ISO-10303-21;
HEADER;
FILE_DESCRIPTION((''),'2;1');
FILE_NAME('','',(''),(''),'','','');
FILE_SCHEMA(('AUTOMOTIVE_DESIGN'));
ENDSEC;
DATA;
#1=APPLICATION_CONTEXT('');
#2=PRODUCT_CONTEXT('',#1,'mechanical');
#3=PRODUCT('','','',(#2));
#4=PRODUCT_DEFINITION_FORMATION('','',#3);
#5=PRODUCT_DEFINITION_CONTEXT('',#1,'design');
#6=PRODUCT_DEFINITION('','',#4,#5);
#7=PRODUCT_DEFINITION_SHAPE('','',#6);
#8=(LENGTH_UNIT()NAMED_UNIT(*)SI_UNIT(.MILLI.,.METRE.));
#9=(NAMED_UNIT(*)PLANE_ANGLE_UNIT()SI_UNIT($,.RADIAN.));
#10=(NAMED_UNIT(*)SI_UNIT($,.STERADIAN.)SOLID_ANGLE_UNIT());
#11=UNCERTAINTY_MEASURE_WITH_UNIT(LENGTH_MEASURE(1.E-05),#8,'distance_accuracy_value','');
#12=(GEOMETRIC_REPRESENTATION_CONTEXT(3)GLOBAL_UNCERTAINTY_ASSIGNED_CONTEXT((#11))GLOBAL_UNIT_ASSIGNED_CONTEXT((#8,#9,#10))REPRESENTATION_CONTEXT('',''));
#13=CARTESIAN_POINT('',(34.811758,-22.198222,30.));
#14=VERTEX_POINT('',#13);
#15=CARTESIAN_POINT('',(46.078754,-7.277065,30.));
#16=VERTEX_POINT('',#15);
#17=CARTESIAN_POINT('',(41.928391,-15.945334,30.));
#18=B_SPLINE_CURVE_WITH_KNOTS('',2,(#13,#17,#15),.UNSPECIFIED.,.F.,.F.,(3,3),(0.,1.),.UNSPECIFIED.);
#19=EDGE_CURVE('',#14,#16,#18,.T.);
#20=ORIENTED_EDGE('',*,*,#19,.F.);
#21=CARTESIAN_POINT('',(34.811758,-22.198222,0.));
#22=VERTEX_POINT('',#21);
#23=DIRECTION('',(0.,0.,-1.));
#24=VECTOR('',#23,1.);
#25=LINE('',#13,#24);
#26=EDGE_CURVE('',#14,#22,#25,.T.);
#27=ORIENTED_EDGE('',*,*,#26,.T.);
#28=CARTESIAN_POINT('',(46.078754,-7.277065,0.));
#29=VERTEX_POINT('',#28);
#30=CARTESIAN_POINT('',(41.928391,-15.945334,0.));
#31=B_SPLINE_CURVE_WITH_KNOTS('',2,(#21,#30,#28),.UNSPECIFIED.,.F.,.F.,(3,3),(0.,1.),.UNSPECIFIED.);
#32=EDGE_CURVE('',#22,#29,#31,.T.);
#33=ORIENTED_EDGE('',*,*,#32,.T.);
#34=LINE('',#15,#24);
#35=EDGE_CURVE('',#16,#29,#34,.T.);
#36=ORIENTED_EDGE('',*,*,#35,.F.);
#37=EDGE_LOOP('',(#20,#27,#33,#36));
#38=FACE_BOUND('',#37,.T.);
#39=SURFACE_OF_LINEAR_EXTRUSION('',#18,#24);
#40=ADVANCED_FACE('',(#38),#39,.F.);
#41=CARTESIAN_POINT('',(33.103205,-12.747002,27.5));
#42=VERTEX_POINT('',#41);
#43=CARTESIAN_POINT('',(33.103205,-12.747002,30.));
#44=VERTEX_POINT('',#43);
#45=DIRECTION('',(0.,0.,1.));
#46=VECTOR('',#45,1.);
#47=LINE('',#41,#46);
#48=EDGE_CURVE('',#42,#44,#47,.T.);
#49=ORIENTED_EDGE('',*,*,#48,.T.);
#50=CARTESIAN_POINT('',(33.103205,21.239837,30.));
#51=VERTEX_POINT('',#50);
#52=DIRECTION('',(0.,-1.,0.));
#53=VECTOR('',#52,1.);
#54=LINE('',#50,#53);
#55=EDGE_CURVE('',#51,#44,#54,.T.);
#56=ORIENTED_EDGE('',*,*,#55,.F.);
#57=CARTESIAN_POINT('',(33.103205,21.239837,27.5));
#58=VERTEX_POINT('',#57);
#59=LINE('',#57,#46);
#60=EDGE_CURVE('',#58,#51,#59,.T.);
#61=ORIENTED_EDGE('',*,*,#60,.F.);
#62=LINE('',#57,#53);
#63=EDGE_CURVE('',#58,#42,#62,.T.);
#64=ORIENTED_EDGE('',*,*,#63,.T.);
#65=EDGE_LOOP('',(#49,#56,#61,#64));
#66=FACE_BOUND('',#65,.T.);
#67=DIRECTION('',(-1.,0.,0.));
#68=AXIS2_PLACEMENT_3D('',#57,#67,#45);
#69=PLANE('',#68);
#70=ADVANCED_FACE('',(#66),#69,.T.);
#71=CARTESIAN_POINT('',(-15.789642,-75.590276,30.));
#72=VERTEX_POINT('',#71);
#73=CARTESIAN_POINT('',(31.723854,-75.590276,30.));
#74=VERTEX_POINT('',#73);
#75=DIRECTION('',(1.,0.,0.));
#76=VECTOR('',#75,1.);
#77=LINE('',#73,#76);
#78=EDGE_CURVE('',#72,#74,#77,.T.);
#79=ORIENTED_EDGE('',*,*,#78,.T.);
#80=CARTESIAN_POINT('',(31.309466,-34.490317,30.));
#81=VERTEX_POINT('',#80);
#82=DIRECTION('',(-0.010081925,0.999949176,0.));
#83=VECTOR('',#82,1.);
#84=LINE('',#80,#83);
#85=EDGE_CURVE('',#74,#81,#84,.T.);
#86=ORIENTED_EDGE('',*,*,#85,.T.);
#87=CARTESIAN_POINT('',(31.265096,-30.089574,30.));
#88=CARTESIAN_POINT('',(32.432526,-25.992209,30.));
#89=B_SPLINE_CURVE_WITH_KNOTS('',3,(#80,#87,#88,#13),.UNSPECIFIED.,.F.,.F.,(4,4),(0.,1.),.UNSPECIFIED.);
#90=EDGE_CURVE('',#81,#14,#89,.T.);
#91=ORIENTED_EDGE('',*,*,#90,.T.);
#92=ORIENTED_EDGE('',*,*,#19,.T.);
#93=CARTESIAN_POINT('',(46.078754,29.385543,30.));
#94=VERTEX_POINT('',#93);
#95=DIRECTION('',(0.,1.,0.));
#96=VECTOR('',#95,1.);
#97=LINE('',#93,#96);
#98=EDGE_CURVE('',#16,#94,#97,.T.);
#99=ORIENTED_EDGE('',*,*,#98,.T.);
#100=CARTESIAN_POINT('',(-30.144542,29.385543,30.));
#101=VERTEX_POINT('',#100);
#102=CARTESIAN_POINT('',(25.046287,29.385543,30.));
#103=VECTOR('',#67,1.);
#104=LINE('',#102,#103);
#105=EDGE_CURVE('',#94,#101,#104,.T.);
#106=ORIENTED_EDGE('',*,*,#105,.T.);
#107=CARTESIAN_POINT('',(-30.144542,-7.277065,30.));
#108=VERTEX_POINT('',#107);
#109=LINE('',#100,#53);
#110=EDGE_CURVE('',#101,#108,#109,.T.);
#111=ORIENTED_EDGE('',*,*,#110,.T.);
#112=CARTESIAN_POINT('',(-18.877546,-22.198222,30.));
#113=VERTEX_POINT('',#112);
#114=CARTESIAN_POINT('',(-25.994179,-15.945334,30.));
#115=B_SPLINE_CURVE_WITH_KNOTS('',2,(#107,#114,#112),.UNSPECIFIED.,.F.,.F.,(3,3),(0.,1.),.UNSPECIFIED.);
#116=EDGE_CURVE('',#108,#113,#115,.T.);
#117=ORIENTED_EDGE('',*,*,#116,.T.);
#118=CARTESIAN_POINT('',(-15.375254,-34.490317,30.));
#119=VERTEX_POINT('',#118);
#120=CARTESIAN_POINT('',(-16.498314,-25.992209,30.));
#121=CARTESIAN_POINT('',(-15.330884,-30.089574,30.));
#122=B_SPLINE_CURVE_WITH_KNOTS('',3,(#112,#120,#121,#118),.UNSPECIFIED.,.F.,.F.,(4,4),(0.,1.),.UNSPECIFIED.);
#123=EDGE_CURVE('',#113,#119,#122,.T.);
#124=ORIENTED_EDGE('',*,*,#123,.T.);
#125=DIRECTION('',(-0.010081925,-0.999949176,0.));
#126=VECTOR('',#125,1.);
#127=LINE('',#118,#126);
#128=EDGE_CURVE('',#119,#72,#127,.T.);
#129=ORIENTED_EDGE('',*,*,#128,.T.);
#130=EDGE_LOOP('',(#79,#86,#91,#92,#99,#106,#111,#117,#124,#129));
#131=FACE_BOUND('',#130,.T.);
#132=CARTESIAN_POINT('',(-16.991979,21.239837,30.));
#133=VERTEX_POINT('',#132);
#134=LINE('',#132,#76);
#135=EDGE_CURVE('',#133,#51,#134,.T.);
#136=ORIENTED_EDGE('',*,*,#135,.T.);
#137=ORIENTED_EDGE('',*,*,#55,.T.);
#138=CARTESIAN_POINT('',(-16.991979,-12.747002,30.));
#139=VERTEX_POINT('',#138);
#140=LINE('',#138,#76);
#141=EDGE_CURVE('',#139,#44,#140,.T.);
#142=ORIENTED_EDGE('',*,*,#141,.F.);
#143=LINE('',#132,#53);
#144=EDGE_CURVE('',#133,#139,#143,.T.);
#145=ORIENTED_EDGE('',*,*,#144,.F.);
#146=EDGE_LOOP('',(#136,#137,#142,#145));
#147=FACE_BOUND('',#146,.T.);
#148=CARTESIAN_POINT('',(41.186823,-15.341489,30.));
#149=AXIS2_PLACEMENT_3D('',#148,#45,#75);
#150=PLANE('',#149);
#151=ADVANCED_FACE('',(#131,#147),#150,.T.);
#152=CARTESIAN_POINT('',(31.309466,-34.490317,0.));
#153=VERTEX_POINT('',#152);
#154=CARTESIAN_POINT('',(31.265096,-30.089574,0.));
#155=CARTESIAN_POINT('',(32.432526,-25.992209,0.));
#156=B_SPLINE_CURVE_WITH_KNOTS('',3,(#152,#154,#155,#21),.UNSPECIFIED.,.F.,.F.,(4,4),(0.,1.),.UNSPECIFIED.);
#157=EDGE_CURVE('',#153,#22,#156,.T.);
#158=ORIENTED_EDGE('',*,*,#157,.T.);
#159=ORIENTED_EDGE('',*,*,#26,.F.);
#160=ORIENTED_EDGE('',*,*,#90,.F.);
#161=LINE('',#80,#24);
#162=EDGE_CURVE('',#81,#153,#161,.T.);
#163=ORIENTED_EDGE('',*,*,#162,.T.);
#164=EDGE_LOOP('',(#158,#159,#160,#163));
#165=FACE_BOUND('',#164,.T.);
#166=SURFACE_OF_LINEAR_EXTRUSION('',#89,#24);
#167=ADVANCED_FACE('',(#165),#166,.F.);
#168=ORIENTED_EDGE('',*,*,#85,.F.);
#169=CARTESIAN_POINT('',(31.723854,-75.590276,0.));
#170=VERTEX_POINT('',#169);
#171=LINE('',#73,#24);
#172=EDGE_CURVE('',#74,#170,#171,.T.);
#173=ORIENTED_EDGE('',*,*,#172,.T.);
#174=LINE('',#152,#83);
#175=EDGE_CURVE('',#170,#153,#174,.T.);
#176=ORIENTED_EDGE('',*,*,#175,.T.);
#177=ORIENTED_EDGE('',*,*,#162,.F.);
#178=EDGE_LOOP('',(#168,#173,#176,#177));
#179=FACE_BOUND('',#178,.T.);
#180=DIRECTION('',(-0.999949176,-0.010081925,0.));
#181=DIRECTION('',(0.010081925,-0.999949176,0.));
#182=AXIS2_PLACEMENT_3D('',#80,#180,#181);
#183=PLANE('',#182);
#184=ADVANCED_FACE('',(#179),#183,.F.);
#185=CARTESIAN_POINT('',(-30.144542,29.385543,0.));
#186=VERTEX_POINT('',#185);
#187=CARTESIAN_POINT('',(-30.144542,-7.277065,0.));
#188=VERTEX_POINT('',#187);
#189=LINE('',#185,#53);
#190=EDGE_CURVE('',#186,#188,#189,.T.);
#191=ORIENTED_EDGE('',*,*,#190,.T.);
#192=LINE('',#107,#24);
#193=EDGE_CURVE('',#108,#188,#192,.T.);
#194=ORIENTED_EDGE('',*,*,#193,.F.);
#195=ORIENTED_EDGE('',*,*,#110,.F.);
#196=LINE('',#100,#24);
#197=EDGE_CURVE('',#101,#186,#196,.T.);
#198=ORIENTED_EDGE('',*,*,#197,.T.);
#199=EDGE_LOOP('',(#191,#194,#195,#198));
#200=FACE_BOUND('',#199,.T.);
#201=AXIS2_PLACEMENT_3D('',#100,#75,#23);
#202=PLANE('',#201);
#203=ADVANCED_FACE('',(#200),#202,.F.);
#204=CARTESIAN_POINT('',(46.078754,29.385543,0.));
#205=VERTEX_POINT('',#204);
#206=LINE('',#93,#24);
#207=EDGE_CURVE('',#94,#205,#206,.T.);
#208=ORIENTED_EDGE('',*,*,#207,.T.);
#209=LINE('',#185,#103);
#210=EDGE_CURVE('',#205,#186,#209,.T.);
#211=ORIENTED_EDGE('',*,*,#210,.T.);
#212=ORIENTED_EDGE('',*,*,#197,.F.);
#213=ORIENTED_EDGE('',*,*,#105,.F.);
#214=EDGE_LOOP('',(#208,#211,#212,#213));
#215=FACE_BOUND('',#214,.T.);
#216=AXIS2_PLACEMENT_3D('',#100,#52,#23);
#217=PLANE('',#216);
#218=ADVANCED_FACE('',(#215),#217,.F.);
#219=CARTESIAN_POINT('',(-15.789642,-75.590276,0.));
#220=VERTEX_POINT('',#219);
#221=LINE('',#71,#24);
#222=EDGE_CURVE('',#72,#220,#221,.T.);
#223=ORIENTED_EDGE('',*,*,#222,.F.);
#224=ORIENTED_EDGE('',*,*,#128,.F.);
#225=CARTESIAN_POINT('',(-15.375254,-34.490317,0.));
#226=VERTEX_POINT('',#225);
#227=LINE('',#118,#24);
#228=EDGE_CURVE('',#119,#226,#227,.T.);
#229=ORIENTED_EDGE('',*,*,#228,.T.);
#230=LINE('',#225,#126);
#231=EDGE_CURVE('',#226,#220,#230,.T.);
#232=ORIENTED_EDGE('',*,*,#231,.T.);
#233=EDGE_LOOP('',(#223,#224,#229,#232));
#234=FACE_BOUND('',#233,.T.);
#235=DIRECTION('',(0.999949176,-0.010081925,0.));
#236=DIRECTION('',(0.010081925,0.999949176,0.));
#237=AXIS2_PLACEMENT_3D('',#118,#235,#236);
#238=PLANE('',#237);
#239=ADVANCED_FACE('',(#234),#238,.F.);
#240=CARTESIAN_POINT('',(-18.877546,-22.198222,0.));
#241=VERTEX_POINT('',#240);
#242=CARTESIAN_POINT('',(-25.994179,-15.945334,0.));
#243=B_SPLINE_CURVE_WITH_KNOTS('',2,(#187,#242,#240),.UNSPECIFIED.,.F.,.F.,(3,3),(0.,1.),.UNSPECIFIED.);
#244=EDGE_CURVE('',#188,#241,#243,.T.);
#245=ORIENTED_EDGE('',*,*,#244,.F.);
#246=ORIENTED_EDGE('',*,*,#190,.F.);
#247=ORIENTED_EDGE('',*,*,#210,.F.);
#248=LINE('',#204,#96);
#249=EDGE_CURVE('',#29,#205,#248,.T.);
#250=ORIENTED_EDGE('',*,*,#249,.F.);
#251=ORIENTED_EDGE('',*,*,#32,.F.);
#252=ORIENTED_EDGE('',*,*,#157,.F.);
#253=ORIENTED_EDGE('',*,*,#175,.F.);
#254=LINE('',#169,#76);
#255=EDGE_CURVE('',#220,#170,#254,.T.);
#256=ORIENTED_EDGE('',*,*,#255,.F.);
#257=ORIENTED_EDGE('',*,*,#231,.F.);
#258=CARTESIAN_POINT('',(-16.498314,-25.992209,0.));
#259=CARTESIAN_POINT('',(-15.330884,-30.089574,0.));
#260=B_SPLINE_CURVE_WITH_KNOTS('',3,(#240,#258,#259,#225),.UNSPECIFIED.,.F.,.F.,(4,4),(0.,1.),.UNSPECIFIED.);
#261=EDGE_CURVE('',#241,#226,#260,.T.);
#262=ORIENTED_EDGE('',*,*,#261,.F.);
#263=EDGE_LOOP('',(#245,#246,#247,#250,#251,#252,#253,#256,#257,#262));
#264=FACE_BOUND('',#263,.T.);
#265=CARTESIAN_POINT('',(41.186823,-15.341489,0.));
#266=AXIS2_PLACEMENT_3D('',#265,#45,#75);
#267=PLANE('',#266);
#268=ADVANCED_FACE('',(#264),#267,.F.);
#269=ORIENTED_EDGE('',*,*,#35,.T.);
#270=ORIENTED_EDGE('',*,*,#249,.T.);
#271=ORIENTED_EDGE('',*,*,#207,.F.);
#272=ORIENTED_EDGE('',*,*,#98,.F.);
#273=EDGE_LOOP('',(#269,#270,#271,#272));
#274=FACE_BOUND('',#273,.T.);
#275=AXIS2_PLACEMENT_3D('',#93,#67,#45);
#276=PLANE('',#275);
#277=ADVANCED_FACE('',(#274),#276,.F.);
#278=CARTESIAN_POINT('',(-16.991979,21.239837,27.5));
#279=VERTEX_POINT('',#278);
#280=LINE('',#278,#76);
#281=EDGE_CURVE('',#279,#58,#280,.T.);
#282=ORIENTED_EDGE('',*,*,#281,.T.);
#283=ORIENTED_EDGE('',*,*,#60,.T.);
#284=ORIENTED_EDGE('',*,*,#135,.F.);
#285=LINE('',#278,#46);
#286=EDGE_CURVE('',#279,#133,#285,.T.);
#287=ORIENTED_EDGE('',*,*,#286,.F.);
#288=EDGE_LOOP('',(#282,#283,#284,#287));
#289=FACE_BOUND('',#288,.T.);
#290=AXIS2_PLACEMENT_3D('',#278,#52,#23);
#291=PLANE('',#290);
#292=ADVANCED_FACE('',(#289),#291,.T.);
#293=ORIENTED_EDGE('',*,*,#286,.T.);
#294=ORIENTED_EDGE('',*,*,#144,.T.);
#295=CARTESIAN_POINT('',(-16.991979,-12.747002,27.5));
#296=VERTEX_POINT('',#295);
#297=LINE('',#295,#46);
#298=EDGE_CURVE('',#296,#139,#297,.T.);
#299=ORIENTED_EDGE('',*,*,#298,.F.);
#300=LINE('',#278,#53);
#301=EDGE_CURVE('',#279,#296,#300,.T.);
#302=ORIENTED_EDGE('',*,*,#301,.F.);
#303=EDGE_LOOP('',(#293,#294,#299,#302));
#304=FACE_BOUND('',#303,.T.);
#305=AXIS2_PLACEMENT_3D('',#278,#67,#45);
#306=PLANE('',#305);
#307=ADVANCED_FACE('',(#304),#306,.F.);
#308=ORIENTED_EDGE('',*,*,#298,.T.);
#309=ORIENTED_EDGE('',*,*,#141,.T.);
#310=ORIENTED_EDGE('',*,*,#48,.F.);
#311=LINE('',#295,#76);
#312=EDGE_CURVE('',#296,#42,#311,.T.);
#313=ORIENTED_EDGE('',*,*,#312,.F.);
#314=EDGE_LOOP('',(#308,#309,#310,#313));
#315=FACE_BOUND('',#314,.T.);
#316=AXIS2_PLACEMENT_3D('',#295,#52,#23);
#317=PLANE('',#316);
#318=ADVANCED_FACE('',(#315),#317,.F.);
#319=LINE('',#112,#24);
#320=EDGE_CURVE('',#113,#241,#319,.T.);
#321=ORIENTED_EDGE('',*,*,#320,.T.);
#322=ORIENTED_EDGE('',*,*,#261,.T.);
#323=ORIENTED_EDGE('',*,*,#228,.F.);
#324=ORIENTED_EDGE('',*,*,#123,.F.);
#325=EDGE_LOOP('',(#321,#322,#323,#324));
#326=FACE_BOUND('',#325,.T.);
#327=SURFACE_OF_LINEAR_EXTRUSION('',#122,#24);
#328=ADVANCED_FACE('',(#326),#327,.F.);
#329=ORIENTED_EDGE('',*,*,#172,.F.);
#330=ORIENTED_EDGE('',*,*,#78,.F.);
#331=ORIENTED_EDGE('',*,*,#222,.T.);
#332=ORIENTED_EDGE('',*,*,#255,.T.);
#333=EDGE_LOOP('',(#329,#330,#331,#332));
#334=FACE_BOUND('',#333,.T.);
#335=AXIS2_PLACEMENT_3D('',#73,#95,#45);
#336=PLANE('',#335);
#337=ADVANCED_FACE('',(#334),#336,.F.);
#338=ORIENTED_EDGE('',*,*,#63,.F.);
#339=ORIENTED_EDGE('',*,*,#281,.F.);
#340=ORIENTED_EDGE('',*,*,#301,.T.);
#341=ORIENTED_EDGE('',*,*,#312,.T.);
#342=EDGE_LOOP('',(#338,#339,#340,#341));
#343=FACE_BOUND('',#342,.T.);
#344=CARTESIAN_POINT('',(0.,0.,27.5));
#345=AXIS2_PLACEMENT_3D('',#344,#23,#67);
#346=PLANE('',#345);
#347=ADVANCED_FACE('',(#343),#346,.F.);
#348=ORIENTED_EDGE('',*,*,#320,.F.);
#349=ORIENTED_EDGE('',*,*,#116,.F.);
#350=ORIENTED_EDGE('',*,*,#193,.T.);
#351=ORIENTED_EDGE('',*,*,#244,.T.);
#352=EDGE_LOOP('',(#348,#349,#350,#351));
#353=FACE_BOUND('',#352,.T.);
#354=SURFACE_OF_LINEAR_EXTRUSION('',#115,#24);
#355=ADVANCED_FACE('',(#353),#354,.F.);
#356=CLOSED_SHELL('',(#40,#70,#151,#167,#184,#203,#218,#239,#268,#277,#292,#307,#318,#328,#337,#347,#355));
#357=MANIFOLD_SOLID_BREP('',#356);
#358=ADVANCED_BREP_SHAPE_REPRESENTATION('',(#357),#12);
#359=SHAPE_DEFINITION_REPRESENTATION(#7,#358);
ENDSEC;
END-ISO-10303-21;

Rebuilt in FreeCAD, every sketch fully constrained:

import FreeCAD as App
import Part
import Sketcher


def add_polygon(sketch, points):
    """Adds a closed chain of lines whose ends are joined by coincident constraints."""
    first, n = sketch.GeometryCount, len(points)
    for a, b in zip(points, points[1:] + points[:1]):
        sketch.addGeometry(Part.LineSegment(App.Vector(*a, 0), App.Vector(*b, 0)), False)
    for i in range(n):
        sketch.addConstraint(Sketcher.Constraint("Coincident", first + i, 2, first + (i + 1) % n, 1))

doc = App.newDocument("Part")
body = doc.addObject("PartDesign::Body", "Body")

# Sketch on XY plane
sketch1 = doc.addObject("Sketcher::SketchObject", "Sketch")
body.addObject(sketch1)
sketch1.AttachmentSupport = (doc.XY_Plane, [""])
sketch1.MapMode = "FlatFace"
sketch1.addGeometry([
    Part.LineSegment(App.Vector(31.723854, -75.590276, 0), App.Vector(31.309466, -34.490317, 0)),  # 0
    Part.BSplineCurve([App.Vector(34.811758, -22.198222, 0), App.Vector(32.432526, -25.992209, 0), App.Vector(31.265096, -30.089574, 0), App.Vector(31.309466, -34.490317, 0)], [4, 4], [0, 1], False, 3, [1, 1, 1, 1], False),  # 1
    Part.BSplineCurve([App.Vector(46.078754, -7.277065, 0), App.Vector(41.928391, -15.945334, 0), App.Vector(34.811758, -22.198222, 0)], [3, 3], [0, 1], False, 2, [1, 1, 1], False),  # 2
    Part.LineSegment(App.Vector(46.078754, -7.277065, 0), App.Vector(46.078754, 29.385543, 0)),  # 3
    Part.LineSegment(App.Vector(46.078754, 29.385543, 0), App.Vector(-30.144542, 29.385543, 0)),  # 4
    Part.LineSegment(App.Vector(-30.144542, 29.385543, 0), App.Vector(-30.144542, -7.277065, 0)),  # 5
    Part.BSplineCurve([App.Vector(-30.144542, -7.277065, 0), App.Vector(-25.994179, -15.945334, 0), App.Vector(-18.877546, -22.198222, 0)], [3, 3], [0, 1], False, 2, [1, 1, 1], False),  # 6
    Part.BSplineCurve([App.Vector(-18.877546, -22.198222, 0), App.Vector(-16.498314, -25.992209, 0), App.Vector(-15.330884, -30.089574, 0), App.Vector(-15.375254, -34.490317, 0)], [4, 4], [0, 1], False, 3, [1, 1, 1, 1], False),  # 7
    Part.LineSegment(App.Vector(-15.375254, -34.490317, 0), App.Vector(-15.789642, -75.590276, 0)),  # 8
    Part.LineSegment(App.Vector(-15.789642, -75.590276, 0), App.Vector(31.723854, -75.590276, 0)),  # 9
], False)
sketch1.addConstraint([
    Sketcher.Constraint("Block", 1),
    Sketcher.Constraint("Block", 2),
    Sketcher.Constraint("Block", 6),
    Sketcher.Constraint("Block", 7),
    Sketcher.Constraint("Coincident", 0, 2, 1, 2),
    Sketcher.Constraint("Coincident", 2, 1, 3, 1),
    Sketcher.Constraint("Coincident", 3, 2, 4, 1),
    Sketcher.Constraint("Coincident", 4, 2, 5, 1),
    Sketcher.Constraint("Coincident", 5, 2, 6, 1),
    Sketcher.Constraint("Coincident", 7, 2, 8, 1),
    Sketcher.Constraint("Coincident", 8, 2, 9, 1),
    Sketcher.Constraint("Coincident", 9, 2, 0, 1),
    Sketcher.Constraint("Vertical", 3),
    Sketcher.Constraint("Horizontal", 4),
    Sketcher.Constraint("Vertical", 5),
    Sketcher.Constraint("Horizontal", 9),
    Sketcher.Constraint("Equal", 0, 8),
    Sketcher.Constraint("DistanceY", 3, 1, 3, 2, 36.662608),
    Sketcher.Constraint("DistanceX", 5, 2, 8, 2, 14.3549),
    Sketcher.Constraint("DistanceY", 8, 2, 0, 2, 41.099959),
])
pad1 = doc.addObject("PartDesign::Pad", "Pad")
body.addObject(pad1)
pad1.Profile = sketch1
pad1.Length = 30

# Sketch on XY plane
sketch2 = doc.addObject("Sketcher::SketchObject", "Sketch001")
body.addObject(sketch2)
sketch2.AttachmentSupport = (doc.XY_Plane, [""])
sketch2.MapMode = "FlatFace"
sketch2.AttachmentOffset = App.Placement(App.Vector(0, 0, 30), App.Rotation())
add_polygon(sketch2, [(-17, 21), (-17, -13), (33, -13), (33, 21)])  # lines 0-3
sketch2.addConstraint([
    Sketcher.Constraint("Vertical", 0),
    Sketcher.Constraint("Horizontal", 1),
    Sketcher.Constraint("Vertical", 2),
    Sketcher.Constraint("Horizontal", 3),
    Sketcher.Constraint("DistanceY", 0, 2, -1, 1, 12.747002),
    Sketcher.Constraint("DistanceY", 0, 2, 0, 1, 33.986839),
    Sketcher.Constraint("DistanceX", 1, 1, 1, 2, 50.095184),
    Sketcher.Constraint("DistanceX", 0, 2, -1, 1, 16.991979),
])
pocket1 = doc.addObject("PartDesign::Pocket", "Pocket")
body.addObject(pocket1)
pocket1.Profile = sketch2
pocket1.Length = 2.5

doc.recompute()
